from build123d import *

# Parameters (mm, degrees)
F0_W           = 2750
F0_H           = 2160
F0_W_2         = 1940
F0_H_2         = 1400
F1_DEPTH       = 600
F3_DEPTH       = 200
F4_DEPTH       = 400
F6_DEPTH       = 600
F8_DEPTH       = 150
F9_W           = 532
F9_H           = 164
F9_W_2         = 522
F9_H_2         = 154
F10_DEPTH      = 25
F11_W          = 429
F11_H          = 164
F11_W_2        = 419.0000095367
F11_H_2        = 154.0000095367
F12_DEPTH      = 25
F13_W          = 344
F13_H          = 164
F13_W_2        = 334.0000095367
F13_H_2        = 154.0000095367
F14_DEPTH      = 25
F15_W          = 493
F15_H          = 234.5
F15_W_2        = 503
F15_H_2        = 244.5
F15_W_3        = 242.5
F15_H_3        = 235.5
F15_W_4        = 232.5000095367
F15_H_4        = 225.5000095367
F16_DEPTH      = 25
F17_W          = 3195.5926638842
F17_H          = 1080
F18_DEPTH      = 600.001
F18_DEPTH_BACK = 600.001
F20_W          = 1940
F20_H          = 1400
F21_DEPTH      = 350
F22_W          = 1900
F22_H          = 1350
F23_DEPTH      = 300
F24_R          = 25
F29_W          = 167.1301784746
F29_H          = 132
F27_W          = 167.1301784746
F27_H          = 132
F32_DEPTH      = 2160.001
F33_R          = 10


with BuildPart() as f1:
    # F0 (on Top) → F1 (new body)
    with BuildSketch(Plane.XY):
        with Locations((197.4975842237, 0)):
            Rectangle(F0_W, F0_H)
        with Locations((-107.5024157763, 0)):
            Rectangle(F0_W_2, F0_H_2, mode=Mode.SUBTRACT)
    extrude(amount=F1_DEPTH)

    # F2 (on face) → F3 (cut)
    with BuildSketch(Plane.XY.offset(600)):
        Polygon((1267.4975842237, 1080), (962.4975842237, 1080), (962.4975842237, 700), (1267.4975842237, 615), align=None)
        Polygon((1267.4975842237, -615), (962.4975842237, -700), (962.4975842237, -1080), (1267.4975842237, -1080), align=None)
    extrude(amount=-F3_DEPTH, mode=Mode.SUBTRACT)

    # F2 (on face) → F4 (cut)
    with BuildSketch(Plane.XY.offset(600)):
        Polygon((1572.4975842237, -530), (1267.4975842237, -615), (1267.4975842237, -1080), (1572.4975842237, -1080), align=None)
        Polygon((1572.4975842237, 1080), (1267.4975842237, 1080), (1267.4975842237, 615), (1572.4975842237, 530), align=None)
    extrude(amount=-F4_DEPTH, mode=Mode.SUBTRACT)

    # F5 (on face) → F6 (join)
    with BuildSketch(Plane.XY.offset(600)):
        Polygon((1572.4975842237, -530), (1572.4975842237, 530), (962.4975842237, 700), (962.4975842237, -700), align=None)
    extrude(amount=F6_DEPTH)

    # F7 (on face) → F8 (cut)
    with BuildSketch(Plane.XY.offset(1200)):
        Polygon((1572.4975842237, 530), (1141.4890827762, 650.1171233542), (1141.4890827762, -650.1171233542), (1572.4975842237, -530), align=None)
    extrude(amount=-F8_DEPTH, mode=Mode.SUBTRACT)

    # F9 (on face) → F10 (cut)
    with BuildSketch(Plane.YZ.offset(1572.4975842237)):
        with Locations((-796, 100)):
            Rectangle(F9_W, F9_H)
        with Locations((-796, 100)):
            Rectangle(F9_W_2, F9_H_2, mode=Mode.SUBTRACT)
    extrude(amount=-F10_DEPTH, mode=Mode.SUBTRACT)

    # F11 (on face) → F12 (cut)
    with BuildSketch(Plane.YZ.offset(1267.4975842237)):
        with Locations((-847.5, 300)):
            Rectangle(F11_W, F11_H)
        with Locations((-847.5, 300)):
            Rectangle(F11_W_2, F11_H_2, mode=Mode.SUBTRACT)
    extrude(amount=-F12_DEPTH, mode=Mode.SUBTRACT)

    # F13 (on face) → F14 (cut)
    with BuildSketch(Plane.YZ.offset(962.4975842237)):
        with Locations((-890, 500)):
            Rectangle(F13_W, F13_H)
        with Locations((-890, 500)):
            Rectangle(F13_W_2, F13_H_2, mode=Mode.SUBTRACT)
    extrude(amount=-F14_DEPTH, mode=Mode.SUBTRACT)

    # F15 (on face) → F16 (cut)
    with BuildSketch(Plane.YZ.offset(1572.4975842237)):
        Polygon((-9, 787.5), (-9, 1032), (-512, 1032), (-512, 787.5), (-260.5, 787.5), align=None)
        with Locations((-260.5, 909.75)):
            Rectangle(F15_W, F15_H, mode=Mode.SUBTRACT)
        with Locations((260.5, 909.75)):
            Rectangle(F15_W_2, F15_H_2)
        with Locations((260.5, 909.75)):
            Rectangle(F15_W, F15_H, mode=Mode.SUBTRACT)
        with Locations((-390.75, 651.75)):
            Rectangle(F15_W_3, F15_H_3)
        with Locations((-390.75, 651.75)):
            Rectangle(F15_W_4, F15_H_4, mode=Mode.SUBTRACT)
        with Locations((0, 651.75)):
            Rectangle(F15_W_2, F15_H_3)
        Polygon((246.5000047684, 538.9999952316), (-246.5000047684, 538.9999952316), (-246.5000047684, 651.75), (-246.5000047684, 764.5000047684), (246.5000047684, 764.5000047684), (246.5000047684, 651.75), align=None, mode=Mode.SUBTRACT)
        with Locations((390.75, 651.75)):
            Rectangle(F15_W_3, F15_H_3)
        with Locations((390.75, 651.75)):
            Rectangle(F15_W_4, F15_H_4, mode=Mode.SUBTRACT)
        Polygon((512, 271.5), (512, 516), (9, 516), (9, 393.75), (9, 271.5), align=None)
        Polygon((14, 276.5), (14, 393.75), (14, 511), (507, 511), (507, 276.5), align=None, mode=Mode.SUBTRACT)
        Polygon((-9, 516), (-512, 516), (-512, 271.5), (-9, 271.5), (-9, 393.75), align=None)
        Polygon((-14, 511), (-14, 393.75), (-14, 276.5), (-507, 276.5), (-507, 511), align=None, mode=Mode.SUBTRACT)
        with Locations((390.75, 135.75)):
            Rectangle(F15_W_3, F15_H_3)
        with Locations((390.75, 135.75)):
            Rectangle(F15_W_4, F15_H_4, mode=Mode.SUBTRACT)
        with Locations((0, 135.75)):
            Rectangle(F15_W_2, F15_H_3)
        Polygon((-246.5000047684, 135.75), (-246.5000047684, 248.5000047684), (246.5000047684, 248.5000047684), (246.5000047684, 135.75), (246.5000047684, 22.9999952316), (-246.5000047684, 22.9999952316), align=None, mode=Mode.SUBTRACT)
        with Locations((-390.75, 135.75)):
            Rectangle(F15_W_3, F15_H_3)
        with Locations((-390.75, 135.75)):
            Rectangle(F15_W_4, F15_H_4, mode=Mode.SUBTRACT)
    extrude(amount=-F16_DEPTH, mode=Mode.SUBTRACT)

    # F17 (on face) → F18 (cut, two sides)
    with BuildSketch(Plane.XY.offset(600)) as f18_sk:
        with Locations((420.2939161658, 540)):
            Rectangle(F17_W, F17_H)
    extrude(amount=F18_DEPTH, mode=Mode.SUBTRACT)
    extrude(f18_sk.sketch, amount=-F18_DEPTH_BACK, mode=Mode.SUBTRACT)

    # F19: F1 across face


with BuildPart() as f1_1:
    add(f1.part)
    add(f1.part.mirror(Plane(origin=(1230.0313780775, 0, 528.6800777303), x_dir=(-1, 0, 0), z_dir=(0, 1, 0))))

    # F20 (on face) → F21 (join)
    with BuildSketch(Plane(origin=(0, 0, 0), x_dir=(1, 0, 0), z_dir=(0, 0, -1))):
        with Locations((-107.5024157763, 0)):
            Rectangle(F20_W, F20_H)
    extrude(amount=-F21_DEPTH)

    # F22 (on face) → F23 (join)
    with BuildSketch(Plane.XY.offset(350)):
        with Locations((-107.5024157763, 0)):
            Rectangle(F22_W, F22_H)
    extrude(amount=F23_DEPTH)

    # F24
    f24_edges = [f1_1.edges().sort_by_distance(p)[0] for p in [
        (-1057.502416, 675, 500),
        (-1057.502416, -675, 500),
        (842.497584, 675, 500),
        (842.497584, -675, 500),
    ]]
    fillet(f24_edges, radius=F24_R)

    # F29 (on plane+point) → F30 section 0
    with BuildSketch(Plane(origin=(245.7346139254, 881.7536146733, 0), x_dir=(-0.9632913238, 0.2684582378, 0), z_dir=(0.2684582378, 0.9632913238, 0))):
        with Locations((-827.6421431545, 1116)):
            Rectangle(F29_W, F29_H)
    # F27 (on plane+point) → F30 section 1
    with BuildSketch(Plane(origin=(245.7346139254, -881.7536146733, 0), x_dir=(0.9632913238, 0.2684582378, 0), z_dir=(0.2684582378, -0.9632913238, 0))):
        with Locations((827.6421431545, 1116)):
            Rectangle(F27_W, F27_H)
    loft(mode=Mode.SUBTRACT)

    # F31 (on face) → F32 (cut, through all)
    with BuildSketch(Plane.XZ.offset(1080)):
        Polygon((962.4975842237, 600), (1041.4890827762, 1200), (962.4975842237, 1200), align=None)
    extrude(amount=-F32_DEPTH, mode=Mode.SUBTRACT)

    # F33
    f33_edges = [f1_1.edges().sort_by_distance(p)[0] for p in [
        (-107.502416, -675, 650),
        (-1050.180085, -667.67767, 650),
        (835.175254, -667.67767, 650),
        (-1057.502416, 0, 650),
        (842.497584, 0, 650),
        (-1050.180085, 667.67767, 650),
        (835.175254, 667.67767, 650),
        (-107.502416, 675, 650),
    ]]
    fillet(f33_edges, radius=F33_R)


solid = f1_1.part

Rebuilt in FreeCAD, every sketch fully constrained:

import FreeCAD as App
import Part
import Sketcher
Q = App.Units.Quantity


def edges_at(feature, points):
    """Names of the edges that pass closest to the given points."""
    edges = feature.Shape.Edges
    near = lambda p: min(range(len(edges)), key=lambda i: edges[i].distToShape(Part.Vertex(*p))[0])
    return sorted({f"Edge{near(p) + 1}" for p in points})


def add_polygon(sketch, points):
    """Adds a closed chain of lines whose ends are joined by coincident constraints."""
    first, n = sketch.GeometryCount, len(points)
    for a, b in zip(points, points[1:] + points[:1]):
        sketch.addGeometry(Part.LineSegment(App.Vector(*a, 0), App.Vector(*b, 0)), False)
    for i in range(n):
        sketch.addConstraint(Sketcher.Constraint("Coincident", first + i, 2, first + (i + 1) % n, 1))

doc = App.newDocument("Part")
body = doc.addObject("PartDesign::Body", "Body")

sketch1 = body.newObject("Sketcher::SketchObject", "Sketch")
sketch1.AttachmentSupport = (doc.getObject("XY_Plane"), [""])
sketch1.MapMode = "FlatFace"
add_polygon(sketch1, [(-1177.502416, 1080), (-1177.502416, -1080), (1572.497584, -1080), (1572.497584, 1080)])
add_polygon(sketch1, [(862.497584, -700), (-1077.502416, -700), (-1077.502416, 700), (862.497584, 700)])
sketch1.addConstraint([
    Sketcher.Constraint("Vertical", 0),
    Sketcher.Constraint("Horizontal", 1),
    Sketcher.Constraint("Vertical", 2),
    Sketcher.Constraint("Horizontal", 3),
    Sketcher.Constraint("Horizontal", 4),
    Sketcher.Constraint("Vertical", 5),
    Sketcher.Constraint("Horizontal", 6),
    Sketcher.Constraint("Vertical", 7),
    Sketcher.Constraint("DistanceX", 1, 1, 1, 2, 2750.0),
    Sketcher.Constraint("DistanceX", 4, 2, 4, 1, 1940.0),
    Sketcher.Constraint("DistanceY", 0, 2, 0, 1, 2160.0),
    Sketcher.Constraint("DistanceY", 5, 1, 5, 2, 1400.0),
    Sketcher.Constraint("DistanceY", 0, 2, -1, 1, 1080.0),
    Sketcher.Constraint("DistanceY", 4, 2, -1, 1, 700.0),
    Sketcher.Constraint("DistanceX", 0, 2, 4, 2, 100.0),
    Sketcher.Constraint("DistanceX", 0, 2, -1, 1, 1177.502416),
])
pad1 = body.newObject("PartDesign::Pad", "Pad")
pad1.Profile = sketch1
pad1.Length = 600

sketch2 = body.newObject("Sketcher::SketchObject", "Sketch001")
sketch2.AttachmentSupport = (doc.getObject("XY_Plane"), [""])
sketch2.MapMode = "FlatFace"
sketch2.AttachmentOffset = App.Placement(App.Vector(0, 0, 600), App.Rotation())
add_polygon(sketch2, [(1267.497584, 1080), (962.497584, 1080), (962.497584, 700), (1267.497584, 615)])
add_polygon(sketch2, [(1267.497584, -615), (962.497584, -700), (962.497584, -1080), (1267.497584, -1080)])
sketch2.addConstraint([
    Sketcher.Constraint("Horizontal", 0),
    Sketcher.Constraint("Vertical", 1),
    Sketcher.Constraint("Vertical", 3),
    Sketcher.Constraint("Vertical", 5),
    Sketcher.Constraint("Horizontal", 6),
    Sketcher.Constraint("Vertical", 7),
    Sketcher.Constraint("Symmetric", 1, 2, 4, 2, -1),
    Sketcher.Constraint("Symmetric", 3, 2, 6, 2, -1),
    Sketcher.Constraint("Equal", 3, 7),
    Sketcher.Constraint("DistanceX", 0, 2, 0, 1, 305.0),
    Sketcher.Constraint("DistanceY", 1, 2, 1, 1, 380.0),
    Sketcher.Constraint("DistanceY", 3, 1, 3, 2, 465.0),
    Sketcher.Constraint("DistanceY", -1, 1, 0, 2, 1080.0),
    Sketcher.Constraint("DistanceX", -1, 1, 0, 2, 962.497584),
])
pocket1 = body.newObject("PartDesign::Pocket", "Pocket")
pocket1.Profile = sketch2
pocket1.Length = 200

sketch3 = body.newObject("Sketcher::SketchObject", "Sketch002")
sketch3.AttachmentSupport = (doc.getObject("XY_Plane"), [""])
sketch3.MapMode = "FlatFace"
sketch3.AttachmentOffset = App.Placement(App.Vector(0, 0, 600), App.Rotation())
add_polygon(sketch3, [(1572.497584, -530), (1267.497584, -615), (1267.497584, -1080), (1572.497584, -1080)])
add_polygon(sketch3, [(1572.497584, 1080), (1267.497584, 1080), (1267.497584, 615), (1572.497584, 530)])
sketch3.addConstraint([
    Sketcher.Constraint("Vertical", 1),
    Sketcher.Constraint("Horizontal", 2),
    Sketcher.Constraint("Vertical", 3),
    Sketcher.Constraint("Horizontal", 4),
    Sketcher.Constraint("Vertical", 5),
    Sketcher.Constraint("Vertical", 7),
    Sketcher.Constraint("Symmetric", 1, 2, 4, 2, -1),
    Sketcher.Constraint("Symmetric", 3, 2, 6, 2, -1),
    Sketcher.Constraint("Equal", 1, 5),
    Sketcher.Constraint("DistanceX", 2, 1, 2, 2, 305.0),
    Sketcher.Constraint("DistanceY", 1, 2, 1, 1, 465.0),
    Sketcher.Constraint("DistanceY", 3, 1, 3, 2, 550.0),
    Sketcher.Constraint("DistanceY", 0, 2, -1, 1, 615.0),
    Sketcher.Constraint("DistanceX", -1, 1, 0, 2, 1267.497584),
])
pocket2 = body.newObject("PartDesign::Pocket", "Pocket001")
pocket2.Profile = sketch3
pocket2.Length = 400

sketch4 = body.newObject("Sketcher::SketchObject", "Sketch003")
sketch4.AttachmentSupport = (doc.getObject("XY_Plane"), [""])
sketch4.MapMode = "FlatFace"
sketch4.AttachmentOffset = App.Placement(App.Vector(0, 0, 600), App.Rotation())
add_polygon(sketch4, [(1572.497584, -530), (1572.497584, 530), (962.497584, 700), (962.497584, -700)])
sketch4.addConstraint([
    Sketcher.Constraint("Vertical", 0),
    Sketcher.Constraint("Vertical", 2),
    Sketcher.Constraint("Equal", 1, 3),
    Sketcher.Constraint("DistanceY", 0, 1, 0, 2, 1060.0),
    Sketcher.Constraint("DistanceY", 2, 2, 2, 1, 1400.0),
    Sketcher.Constraint("DistanceY", -1, 1, 0, 2, 530.0),
    Sketcher.Constraint("DistanceX", 1, 2, 0, 2, 610.0),
    Sketcher.Constraint("DistanceX", -1, 1, 0, 2, 1572.497584),
])
pad2 = body.newObject("PartDesign::Pad", "Pad001")
pad2.Profile = sketch4
pad2.Length = 600

sketch5 = body.newObject("Sketcher::SketchObject", "Sketch004")
sketch5.AttachmentSupport = (doc.getObject("XY_Plane"), [""])
sketch5.MapMode = "FlatFace"
sketch5.AttachmentOffset = App.Placement(App.Vector(0, 0, 1200), App.Rotation())
add_polygon(sketch5, [(1572.497584, 530), (1141.489083, 650.117123), (1141.489083, -650.117123), (1572.497584, -530)])
sketch5.addConstraint([
    Sketcher.Constraint("Vertical", 1),
    Sketcher.Constraint("Vertical", 3),
    Sketcher.Constraint("Equal", 0, 2),
    Sketcher.Constraint("DistanceY", 3, 1, 3, 2, 1060.0),
    Sketcher.Constraint("DistanceY", 2, 2, -1, 1, 530.0),
    Sketcher.Constraint("DistanceX", 1, 2, 2, 2, 431.008501),
    Sketcher.Constraint("Distance", 0, 447.433181),
    Sketcher.Constraint("DistanceX", -1, 1, 0, 2, 1141.489083),
])
pocket3 = body.newObject("PartDesign::Pocket", "Pocket002")
pocket3.Profile = sketch5
pocket3.Length = 150

sketch6 = body.newObject("Sketcher::SketchObject", "Sketch005")
sketch6.AttachmentSupport = (doc.getObject("YZ_Plane"), [""])
sketch6.MapMode = "FlatFace"
sketch6.AttachmentOffset = App.Placement(App.Vector(0, 0, 1572.497584), App.Rotation())
add_polygon(sketch6, [(-1062, 182), (-1062, 18), (-530, 18), (-530, 182)])
add_polygon(sketch6, [(-535, 23), (-1057, 23), (-1057, 177), (-535, 177)])
sketch6.addConstraint([
    Sketcher.Constraint("Vertical", 0),
    Sketcher.Constraint("Horizontal", 1),
    Sketcher.Constraint("Vertical", 2),
    Sketcher.Constraint("Horizontal", 3),
    Sketcher.Constraint("Horizontal", 4),
    Sketcher.Constraint("Vertical", 5),
    Sketcher.Constraint("Horizontal", 6),
    Sketcher.Constraint("Vertical", 7),
    Sketcher.Constraint("DistanceX", 1, 1, 1, 2, 532.0),
    Sketcher.Constraint("DistanceX", 4, 2, 4, 1, 522.0),
    Sketcher.Constraint("DistanceY", 0, 2, 0, 1, 164.0),
    Sketcher.Constraint("DistanceY", 5, 1, 5, 2, 154.0),
    Sketcher.Constraint("DistanceX", 0, 2, -1, 1, 1062.0),
    Sketcher.Constraint("DistanceY", -1, 1, 0, 2, 18.0),
    Sketcher.Constraint("DistanceX", 4, 2, -1, 1, 1057.0),
    Sketcher.Constraint("DistanceY", -1, 1, 4, 2, 23.0),
])
pocket4 = body.newObject("PartDesign::Pocket", "Pocket003")
pocket4.Profile = sketch6
pocket4.Length = 25

sketch7 = body.newObject("Sketcher::SketchObject", "Sketch006")
sketch7.AttachmentSupport = (doc.getObject("YZ_Plane"), [""])
sketch7.MapMode = "FlatFace"
sketch7.AttachmentOffset = App.Placement(App.Vector(0, 0, 1267.497584), App.Rotation())
add_polygon(sketch7, [(-1062, 382), (-1062, 218), (-633, 218), (-633, 382)])
add_polygon(sketch7, [(-637.999995, 222.999995), (-1057.000005, 222.999995), (-1057.000005, 377.000005), (-637.999995, 377.000005)])
sketch7.addConstraint([
    Sketcher.Constraint("Vertical", 0),
    Sketcher.Constraint("Horizontal", 1),
    Sketcher.Constraint("Vertical", 2),
    Sketcher.Constraint("Horizontal", 3),
    Sketcher.Constraint("Horizontal", 4),
    Sketcher.Constraint("Vertical", 5),
    Sketcher.Constraint("Horizontal", 6),
    Sketcher.Constraint("Vertical", 7),
    Sketcher.Constraint("DistanceX", 1, 1, 1, 2, 429.0),
    Sketcher.Constraint("DistanceY", 0, 2, 0, 1, 164.0),
    Sketcher.Constraint("DistanceX", 0, 2, -1, 1, 1062.0),
    Sketcher.Constraint("DistanceY", -1, 1, 0, 2, 218.0),
    Sketcher.Constraint("DistanceX", 4, 2, 4, 1, 419.00001),
    Sketcher.Constraint("DistanceY", 5, 1, 5, 2, 154.00001),
    Sketcher.Constraint("DistanceX", 4, 2, -1, 1, 1057.000005),
    Sketcher.Constraint("DistanceY", -1, 1, 4, 2, 222.999995),
])
pocket5 = body.newObject("PartDesign::Pocket", "Pocket004")
pocket5.Profile = sketch7
pocket5.Length = 25

sketch8 = body.newObject("Sketcher::SketchObject", "Sketch007")
sketch8.AttachmentSupport = (doc.getObject("YZ_Plane"), [""])
sketch8.MapMode = "FlatFace"
sketch8.AttachmentOffset = App.Placement(App.Vector(0, 0, 962.497584), App.Rotation())
add_polygon(sketch8, [(-1062, 582), (-1062, 418), (-718, 418), (-718, 582)])
add_polygon(sketch8, [(-722.999995, 422.999995), (-1057.000005, 422.999995), (-1057.000005, 577.000005), (-722.999995, 577.000005)])
sketch8.addConstraint([
    Sketcher.Constraint("Vertical", 0),
    Sketcher.Constraint("Horizontal", 1),
    Sketcher.Constraint("Vertical", 2),
    Sketcher.Constraint("Horizontal", 3),
    Sketcher.Constraint("Horizontal", 4),
    Sketcher.Constraint("Vertical", 5),
    Sketcher.Constraint("Horizontal", 6),
    Sketcher.Constraint("Vertical", 7),
    Sketcher.Constraint("DistanceX", 1, 1, 1, 2, 344.0),
    Sketcher.Constraint("DistanceY", 0, 2, 0, 1, 164.0),
    Sketcher.Constraint("DistanceX", 0, 2, -1, 1, 1062.0),
    Sketcher.Constraint("DistanceY", -1, 1, 0, 2, 418.0),
    Sketcher.Constraint("DistanceX", 4, 2, 4, 1, 334.00001),
    Sketcher.Constraint("DistanceY", 5, 1, 5, 2, 154.00001),
    Sketcher.Constraint("DistanceX", 4, 2, -1, 1, 1057.000005),
    Sketcher.Constraint("DistanceY", -1, 1, 4, 2, 422.999995),
])
pocket6 = body.newObject("PartDesign::Pocket", "Pocket005")
pocket6.Profile = sketch8
pocket6.Length = 25

sketch9 = body.newObject("Sketcher::SketchObject", "Sketch008")
sketch9.AttachmentSupport = (doc.getObject("YZ_Plane"), [""])
sketch9.MapMode = "FlatFace"
sketch9.AttachmentOffset = App.Placement(App.Vector(0, 0, 1572.497584), App.Rotation())
add_polygon(sketch9, [(-9, 787.5), (-9, 1032), (-512, 1032), (-512, 787.5)])
add_polygon(sketch9, [(-14, 792.5), (-507, 792.5), (-507, 1027), (-14, 1027)])
add_polygon(sketch9, [(9, 1032), (9, 787.5), (512, 787.5), (512, 1032)])
add_polygon(sketch9, [(507, 792.5), (14, 792.5), (14, 1027), (507, 1027)])
add_polygon(sketch9, [(-512, 769.5), (-512, 534), (-269.5, 534), (-269.5, 769.5)])
add_polygon(sketch9, [(-274.499995, 538.999995), (-507.000005, 538.999995), (-507.000005, 764.500005), (-274.499995, 764.500005)])
add_polygon(sketch9, [(-251.5, 769.5), (-251.5, 534), (251.5, 534), (251.5, 769.5)])
add_polygon(sketch9, [(246.500005, 764.500005), (246.500005, 538.999995), (-246.500005, 538.999995), (-246.500005, 764.500005)])
add_polygon(sketch9, [(269.5, 769.5), (269.5, 534), (512, 534), (512, 769.5)])
add_polygon(sketch9, [(507.000005, 538.999995), (274.499995, 538.999995), (274.499995, 764.500005), (507.000005, 764.500005)])
add_polygon(sketch9, [(512, 271.5), (512, 516), (9, 516), (9, 271.5)])
add_polygon(sketch9, [(507, 276.5), (14, 276.5), (14, 511), (507, 511)])
add_polygon(sketch9, [(-9, 516), (-512, 516), (-512, 271.5), (-9, 271.5)])
add_polygon(sketch9, [(-507, 511), (-14, 511), (-14, 276.5), (-507, 276.5)])
add_polygon(sketch9, [(269.5, 253.5), (269.5, 18), (512, 18), (512, 253.5)])
add_polygon(sketch9, [(507.000005, 22.999995), (274.499995, 22.999995), (274.499995, 248.500005), (507.000005, 248.500005)])
add_polygon(sketch9, [(-251.5, 253.5), (-251.5, 18), (251.5, 18), (251.5, 253.5)])
add_polygon(sketch9, [(-246.500005, 22.999995), (-246.500005, 248.500005), (246.500005, 248.500005), (246.500005, 22.999995)])
add_polygon(sketch9, [(-512, 253.5), (-512, 18), (-269.5, 18), (-269.5, 253.5)])
add_polygon(sketch9, [(-274.499995, 22.999995), (-507.000005, 22.999995), (-507.000005, 248.500005), (-274.499995, 248.500005)])
sketch9.addConstraint([
    Sketcher.Constraint("Vertical", 0),
    Sketcher.Constraint("Horizontal", 1),
    Sketcher.Constraint("Vertical", 2),
    Sketcher.Constraint("Horizontal", 3),
    Sketcher.Constraint("Horizontal", 4),
    Sketcher.Constraint("Vertical", 5),
    Sketcher.Constraint("Horizontal", 6),
    Sketcher.Constraint("Vertical", 7),
    Sketcher.Constraint("Vertical", 8),
    Sketcher.Constraint("Horizontal", 9),
    Sketcher.Constraint("Vertical", 10),
    Sketcher.Constraint("Horizontal", 11),
    Sketcher.Constraint("Horizontal", 12),
    Sketcher.Constraint("Vertical", 13),
    Sketcher.Constraint("Horizontal", 14),
    Sketcher.Constraint("Vertical", 15),
    Sketcher.Constraint("Vertical", 16),
    Sketcher.Constraint("Horizontal", 17),
    Sketcher.Constraint("Vertical", 18),
    Sketcher.Constraint("Horizontal", 19),
    Sketcher.Constraint("Horizontal", 20),
    Sketcher.Constraint("Vertical", 21),
    Sketcher.Constraint("Horizontal", 22),
    Sketcher.Constraint("Vertical", 23),
    Sketcher.Constraint("Vertical", 24),
    Sketcher.Constraint("Horizontal", 25),
    Sketcher.Constraint("Vertical", 26),
    Sketcher.Constraint("Horizontal", 27),
    Sketcher.Constraint("Vertical", 28),
    Sketcher.Constraint("Horizontal", 29),
    Sketcher.Constraint("Vertical", 30),
    Sketcher.Constraint("Horizontal", 31),
    Sketcher.Constraint("Vertical", 32),
    Sketcher.Constraint("Horizontal", 33),
    Sketcher.Constraint("Vertical", 34),
    Sketcher.Constraint("Horizontal", 35),
    Sketcher.Constraint("Horizontal", 36),
    Sketcher.Constraint("Vertical", 37),
    Sketcher.Constraint("Horizontal", 38),
    Sketcher.Constraint("Vertical", 39),
    Sketcher.Constraint("Vertical", 40),
    Sketcher.Constraint("Horizontal", 41),
    Sketcher.Constraint("Vertical", 42),
    Sketcher.Constraint("Horizontal", 43),
    Sketcher.Constraint("Horizontal", 44),
    Sketcher.Constraint("Vertical", 45),
    Sketcher.Constraint("Horizontal", 46),
    Sketcher.Constraint("Vertical", 47),
    Sketcher.Constraint("Horizontal", 48),
    Sketcher.Constraint("Vertical", 49),
    Sketcher.Constraint("Horizontal", 50),
    Sketcher.Constraint("Vertical", 51),
    Sketcher.Constraint("Horizontal", 52),
    Sketcher.Constraint("Vertical", 53),
    Sketcher.Constraint("Horizontal", 54),
    Sketcher.Constraint("Vertical", 55),
    Sketcher.Constraint("Vertical", 56),
    Sketcher.Constraint("Horizontal", 57),
    Sketcher.Constraint("Vertical", 58),
    Sketcher.Constraint("Horizontal", 59),
    Sketcher.Constraint("Horizontal", 60),
    Sketcher.Constraint("Vertical", 61),
    Sketcher.Constraint("Horizontal", 62),
    Sketcher.Constraint("Vertical", 63),
    Sketcher.Constraint("Vertical", 64),
    Sketcher.Constraint("Horizontal", 65),
    Sketcher.Constraint("Vertical", 66),
    Sketcher.Constraint("Horizontal", 67),
    Sketcher.Constraint("Vertical", 68),
    Sketcher.Constraint("Horizontal", 69),
    Sketcher.Constraint("Vertical", 70),
    Sketcher.Constraint("Horizontal", 71),
    Sketcher.Constraint("Vertical", 72),
    Sketcher.Constraint("Horizontal", 73),
    Sketcher.Constraint("Vertical", 74),
    Sketcher.Constraint("Horizontal", 75),
    Sketcher.Constraint("Horizontal", 76),
    Sketcher.Constraint("Vertical", 77),
    Sketcher.Constraint("Horizontal", 78),
    Sketcher.Constraint("Vertical", 79),
    Sketcher.Constraint("Symmetric", 3, 2, 8, 2, -2),
    Sketcher.Constraint("Symmetric", 1, 2, 10, 2, -2),
    Sketcher.Constraint("Symmetric", 7, 2, 12, 2, -2),
    Sketcher.Constraint("Symmetric", 5, 2, 14, 2, -2),
    Sketcher.Constraint("Symmetric", 17, 2, 32, 2, -2),
    Sketcher.Constraint("Symmetric", 19, 2, 34, 2, -2),
    Sketcher.Constraint("Symmetric", 23, 2, 36, 2, -2),
    Sketcher.Constraint("Symmetric", 21, 2, 38, 2, -2),
    Sketcher.Constraint("Symmetric", 40, 2, 48, 2, -2),
    Sketcher.Constraint("Symmetric", 42, 2, 50, 2, -2),
    Sketcher.Constraint("Symmetric", 45, 2, 52, 2, -2),
    Sketcher.Constraint("Symmetric", 47, 2, 54, 2, -2),
    Sketcher.Constraint("Symmetric", 57, 2, 72, 2, -2),
    Sketcher.Constraint("Symmetric", 59, 2, 74, 2, -2),
    Sketcher.Constraint("Symmetric", 63, 2, 76, 2, -2),
    Sketcher.Constraint("Symmetric", 61, 2, 78, 2, -2),
    Sketcher.Constraint("Horizontal", 17, 2, 24, 2),
    Sketcher.Constraint("Horizontal", 19, 2, 26, 2),
    Sketcher.Constraint("Horizontal", 23, 2, 28, 2),
    Sketcher.Constraint("Horizontal", 22, 2, 30, 2),
    Sketcher.Constraint("Horizontal", 57, 2, 64, 2),
    Sketcher.Constraint("Horizontal", 59, 2, 66, 2),
    Sketcher.Constraint("Horizontal", 62, 2, 68, 2),
    Sketcher.Constraint("Horizontal", 63, 2, 70, 2),
    Sketcher.Constraint("Vertical", 2, 2, 16, 2),
    Sketcher.Constraint("Vertical", 34, 2, 40, 2),
    Sketcher.Constraint("Vertical", 11, 2, 41, 2),
    Sketcher.Constraint("Vertical", 13, 2, 44, 2),
    Sketcher.Constraint("Vertical", 15, 2, 46, 2),
    Sketcher.Constraint("Vertical", 35, 2, 56, 2),
    Sketcher.Constraint("Vertical", 43, 2, 57, 2),
    Sketcher.Constraint("Vertical", 37, 2, 60, 2),
    Sketcher.Constraint("Vertical", 39, 2, 62, 2),
    Sketcher.Constraint("Vertical", 27, 2, 64, 2),
    Sketcher.Constraint("Vertical", 26, 2, 65, 2),
    Sketcher.Constraint("Vertical", 30, 2, 68, 2),
    Sketcher.Constraint("Vertical", 31, 2, 69, 2),
    Sketcher.Constraint("Equal", 11, 25),
    Sketcher.Constraint("Equal", 10, 40),
    Sketcher.Constraint("Equal", 15, 45),
    Sketcher.Constraint("Equal", 34, 56),
    Sketcher.Constraint("Equal", 39, 61),
    Sketcher.Constraint("DistanceX", 1, 2, 1, 1, 503.0),
    Sketcher.Constraint("DistanceX", 4, 2, 4, 1, 493.0),
    Sketcher.Constraint("DistanceX", 17, 1, 17, 2, 242.5),
    Sketcher.Constraint("DistanceY", 0, 1, 0, 2, 244.5),
    Sketcher.Constraint("DistanceY", 5, 1, 5, 2, 234.5),
    Sketcher.Constraint("DistanceY", 16, 2, 16, 1, 235.5),
    Sketcher.Constraint("DistanceX", 0, 2, -1, 1, 9.0),
    Sketcher.Constraint("DistanceY", -1, 1, 0, 2, 1032.0),
    Sketcher.Constraint("DistanceX", 4, 2, -1, 1, 507.0),
    Sketcher.Constraint("DistanceY", -1, 1, 5, 2, 1027.0),
    Sketcher.Constraint("DistanceY", -1, 1, 16, 2, 534.0),
    Sketcher.Constraint("DistanceY", -1, 1, 40, 2, 516.0),
    Sketcher.Constraint("DistanceY", -1, 1, 45, 2, 511.0),
    Sketcher.Constraint("DistanceY", -1, 1, 56, 2, 18.0),
    Sketcher.Constraint("DistanceX", 24, 2, -1, 1, 251.5),
    Sketcher.Constraint("DistanceX", 20, 2, 20, 1, 232.50001),
    Sketcher.Constraint("DistanceX", 29, 2, 29, 1, 493.00001),
    Sketcher.Constraint("DistanceY", 21, 1, 21, 2, 225.50001),
    Sketcher.Constraint("DistanceX", 20, 2, -1, 1, 507.000005),
    Sketcher.Constraint("DistanceY", -1, 1, 20, 2, 538.999995),
    Sketcher.Constraint("DistanceX", -1, 1, 28, 2, 246.500005),
    Sketcher.Constraint("DistanceY", -1, 1, 60, 2, 22.999995),
])
pocket7 = body.newObject("PartDesign::Pocket", "Pocket006")
pocket7.Profile = sketch9
pocket7.Length = 25

sketch10 = body.newObject("Sketcher::SketchObject", "Sketch009")
sketch10.AttachmentSupport = (doc.getObject("XY_Plane"), [""])
sketch10.MapMode = "FlatFace"
sketch10.AttachmentOffset = App.Placement(App.Vector(0, 0, 600), App.Rotation())
add_polygon(sketch10, [(-1177.502416, 1080), (-1177.502416, 0), (2018.090248, 0), (2018.090248, 1080)])
sketch10.addConstraint([
    Sketcher.Constraint("Vertical", 0),
    Sketcher.Constraint("Horizontal", 1),
    Sketcher.Constraint("Vertical", 2),
    Sketcher.Constraint("Horizontal", 3),
    Sketcher.Constraint("PointOnObject", 0, 2, -1),
    Sketcher.Constraint("DistanceY", 0, 2, 0, 1, 1080.0),
    Sketcher.Constraint("DistanceX", 1, 1, 1, 2, 3195.592664),
    Sketcher.Constraint("DistanceX", -1, 1, 1, 2, 2018.090248),
])
pocket8 = body.newObject("PartDesign::Pocket", "Pocket007")
pocket8.Profile = sketch10
pocket8.Type = "ThroughAll"
pocket8.Midplane = True
body2 = doc.addObject("PartDesign::Body", "Body001")
doc.recompute()

body2.BaseFeature = body
doc.recompute()

mirroring = doc.addObject("Part::Mirroring", "Mirroring")
mirroring.Source = body
mirroring.Base = App.Vector(1230.031378, 0, 528.680078)
mirroring.Normal = App.Vector(0, 1, 0)
body3 = doc.addObject("PartDesign::Body", "Body002")
body3.BaseFeature = mirroring
boolean = body2.newObject("PartDesign::Boolean", "Boolean")
boolean.Type = "Fuse"
boolean.addObjects([body3])
doc.recompute()

sketch11 = body2.newObject("Sketcher::SketchObject", "Sketch010")
sketch11.AttachmentSupport = (doc.getObject("XY_Plane001"), [""])
sketch11.MapMode = "FlatFace"
add_polygon(sketch11, [(-1077.502416, -700), (-1077.502416, 700), (862.497584, 700), (862.497584, -700)])
sketch11.addConstraint([
    Sketcher.Constraint("Vertical", 0),
    Sketcher.Constraint("Horizontal", 1),
    Sketcher.Constraint("Vertical", 2),
    Sketcher.Constraint("Horizontal", 3),
    Sketcher.Constraint("DistanceX", 1, 1, 1, 2, 1940.0),
    Sketcher.Constraint("DistanceY", 0, 1, 0, 2, 1400.0),
    Sketcher.Constraint("DistanceY", -1, 1, 0, 2, 700.0),
    Sketcher.Constraint("DistanceX", 0, 2, -1, 1, 1077.502416),
])
pad3 = body2.newObject("PartDesign::Pad", "Pad002")
pad3.Profile = sketch11
pad3.Length = 350

sketch12 = body2.newObject("Sketcher::SketchObject", "Sketch011")
sketch12.AttachmentSupport = (doc.getObject("XY_Plane001"), [""])
sketch12.MapMode = "FlatFace"
sketch12.AttachmentOffset = App.Placement(App.Vector(0, 0, 350), App.Rotation())
add_polygon(sketch12, [(-1057.502416, 675), (-1057.502416, -675), (842.497584, -675), (842.497584, 675)])
sketch12.addConstraint([
    Sketcher.Constraint("Vertical", 0),
    Sketcher.Constraint("Horizontal", 1),
    Sketcher.Constraint("Vertical", 2),
    Sketcher.Constraint("Horizontal", 3),
    Sketcher.Constraint("DistanceX", 1, 1, 1, 2, 1900.0),
    Sketcher.Constraint("DistanceY", 0, 2, 0, 1, 1350.0),
    Sketcher.Constraint("DistanceY", 0, 2, -1, 1, 675.0),
    Sketcher.Constraint("DistanceX", 0, 2, -1, 1, 1057.502416),
])
pad4 = body2.newObject("PartDesign::Pad", "Pad003")
pad4.Profile = sketch12
pad4.Length = 300
doc.recompute()

fillet = body2.newObject("PartDesign::Fillet", "Fillet")
fillet.Base = (pad4, edges_at(pad4, [
    (-1057.502, 675, 500),
    (-1057.502, -675, 500),
    (842.498, 675, 500),
    (842.498, -675, 500),
]))
fillet.Radius = 25

sketch13 = body2.newObject("Sketcher::SketchObject", "Sketch012")
sketch13.Placement = App.Placement(App.Vector(245.734614, 881.753615, 0), App.Rotation(App.Vector(-0.963291324, 0.268458238, 0), App.Vector(0, 0, 1), App.Vector(0.268458238, 0.963291324, 0), "ZXY"))
add_polygon(sketch13, [(-911.207233, 1182.000001), (-911.207233, 1050.000001), (-744.077054, 1050.000001), (-744.077054, 1182.000001)])
sketch13.addConstraint([
    Sketcher.Constraint("Vertical", 0),
    Sketcher.Constraint("Horizontal", 1),
    Sketcher.Constraint("Vertical", 2),
    Sketcher.Constraint("Horizontal", 3),
    Sketcher.Constraint("DistanceY", 0, 2, 0, 1, 132.0),
    Sketcher.Constraint("DistanceY", -1, 1, 0, 2, 1050.000001),
    Sketcher.Constraint("DistanceX", 1, 1, 1, 2, 167.130179),
    Sketcher.Constraint("DistanceX", 0, 2, -1, 1, 911.207233),
])

sketch14 = body2.newObject("Sketcher::SketchObject", "Sketch013")
sketch14.Placement = App.Placement(App.Vector(245.734614, -881.753615, 0), App.Rotation(App.Vector(0.963291324, 0.268458238, 0), App.Vector(0, 0, 1), App.Vector(0.268458238, -0.963291324, 0), "ZXY"))
add_polygon(sketch14, [(744.077054, 1182.000001), (744.077054, 1050.000001), (911.207233, 1050.000001), (911.207233, 1182.000001)])
sketch14.addConstraint([
    Sketcher.Constraint("Vertical", 0),
    Sketcher.Constraint("Horizontal", 1),
    Sketcher.Constraint("Vertical", 2),
    Sketcher.Constraint("Horizontal", 3),
    Sketcher.Constraint("DistanceY", 0, 2, 0, 1, 132.0),
    Sketcher.Constraint("DistanceY", -1, 1, 0, 2, 1050.000001),
    Sketcher.Constraint("DistanceX", 1, 1, 1, 2, 167.130179),
    Sketcher.Constraint("DistanceX", -1, 1, 0, 2, 744.077054),
])

subtractiveloft = body2.newObject("PartDesign::SubtractiveLoft", "SubtractiveLoft")
subtractiveloft.Profile = sketch13
subtractiveloft.Sections = [sketch14]

sketch15 = body2.newObject("Sketcher::SketchObject", "Sketch014")
sketch15.AttachmentSupport = (doc.getObject("XZ_Plane001"), [""])
sketch15.MapMode = "FlatFace"
sketch15.AttachmentOffset = App.Placement(App.Vector(0, 0, 1080), App.Rotation())
add_polygon(sketch15, [(962.497584, 600), (1041.489083, 1200), (962.497584, 1200)])
sketch15.addConstraint([
    Sketcher.Constraint("Horizontal", 1),
    Sketcher.Constraint("Vertical", 2),
    Sketcher.Constraint("DistanceY", 2, 2, 2, 1, 600.0),
    Sketcher.Constraint("DistanceY", -1, 1, 0, 2, 1200.0),
    Sketcher.Constraint("Angle", 0, Q("82.5 deg")),
    Sketcher.Constraint("DistanceX", -1, 1, 0, 2, 1041.489083),
])
pocket9 = body2.newObject("PartDesign::Pocket", "Pocket008")
pocket9.Profile = sketch15
pocket9.Type = "ThroughAll"
doc.recompute()

fillet2 = body2.newObject("PartDesign::Fillet", "Fillet001")
fillet2.Base = (pocket9, edges_at(pocket9, [
    (-107.502, -675, 650),
    (-1050.18, -667.678, 650),
    (835.175, -667.678, 650),
    (-1057.502, 0, 650),
    (842.498, 0, 650),
    (-1050.18, 667.678, 650),
    (835.175, 667.678, 650),
    (-107.502, 675, 650),
]))
fillet2.Radius = 10
mirroring.Visibility = False

doc.recompute()
